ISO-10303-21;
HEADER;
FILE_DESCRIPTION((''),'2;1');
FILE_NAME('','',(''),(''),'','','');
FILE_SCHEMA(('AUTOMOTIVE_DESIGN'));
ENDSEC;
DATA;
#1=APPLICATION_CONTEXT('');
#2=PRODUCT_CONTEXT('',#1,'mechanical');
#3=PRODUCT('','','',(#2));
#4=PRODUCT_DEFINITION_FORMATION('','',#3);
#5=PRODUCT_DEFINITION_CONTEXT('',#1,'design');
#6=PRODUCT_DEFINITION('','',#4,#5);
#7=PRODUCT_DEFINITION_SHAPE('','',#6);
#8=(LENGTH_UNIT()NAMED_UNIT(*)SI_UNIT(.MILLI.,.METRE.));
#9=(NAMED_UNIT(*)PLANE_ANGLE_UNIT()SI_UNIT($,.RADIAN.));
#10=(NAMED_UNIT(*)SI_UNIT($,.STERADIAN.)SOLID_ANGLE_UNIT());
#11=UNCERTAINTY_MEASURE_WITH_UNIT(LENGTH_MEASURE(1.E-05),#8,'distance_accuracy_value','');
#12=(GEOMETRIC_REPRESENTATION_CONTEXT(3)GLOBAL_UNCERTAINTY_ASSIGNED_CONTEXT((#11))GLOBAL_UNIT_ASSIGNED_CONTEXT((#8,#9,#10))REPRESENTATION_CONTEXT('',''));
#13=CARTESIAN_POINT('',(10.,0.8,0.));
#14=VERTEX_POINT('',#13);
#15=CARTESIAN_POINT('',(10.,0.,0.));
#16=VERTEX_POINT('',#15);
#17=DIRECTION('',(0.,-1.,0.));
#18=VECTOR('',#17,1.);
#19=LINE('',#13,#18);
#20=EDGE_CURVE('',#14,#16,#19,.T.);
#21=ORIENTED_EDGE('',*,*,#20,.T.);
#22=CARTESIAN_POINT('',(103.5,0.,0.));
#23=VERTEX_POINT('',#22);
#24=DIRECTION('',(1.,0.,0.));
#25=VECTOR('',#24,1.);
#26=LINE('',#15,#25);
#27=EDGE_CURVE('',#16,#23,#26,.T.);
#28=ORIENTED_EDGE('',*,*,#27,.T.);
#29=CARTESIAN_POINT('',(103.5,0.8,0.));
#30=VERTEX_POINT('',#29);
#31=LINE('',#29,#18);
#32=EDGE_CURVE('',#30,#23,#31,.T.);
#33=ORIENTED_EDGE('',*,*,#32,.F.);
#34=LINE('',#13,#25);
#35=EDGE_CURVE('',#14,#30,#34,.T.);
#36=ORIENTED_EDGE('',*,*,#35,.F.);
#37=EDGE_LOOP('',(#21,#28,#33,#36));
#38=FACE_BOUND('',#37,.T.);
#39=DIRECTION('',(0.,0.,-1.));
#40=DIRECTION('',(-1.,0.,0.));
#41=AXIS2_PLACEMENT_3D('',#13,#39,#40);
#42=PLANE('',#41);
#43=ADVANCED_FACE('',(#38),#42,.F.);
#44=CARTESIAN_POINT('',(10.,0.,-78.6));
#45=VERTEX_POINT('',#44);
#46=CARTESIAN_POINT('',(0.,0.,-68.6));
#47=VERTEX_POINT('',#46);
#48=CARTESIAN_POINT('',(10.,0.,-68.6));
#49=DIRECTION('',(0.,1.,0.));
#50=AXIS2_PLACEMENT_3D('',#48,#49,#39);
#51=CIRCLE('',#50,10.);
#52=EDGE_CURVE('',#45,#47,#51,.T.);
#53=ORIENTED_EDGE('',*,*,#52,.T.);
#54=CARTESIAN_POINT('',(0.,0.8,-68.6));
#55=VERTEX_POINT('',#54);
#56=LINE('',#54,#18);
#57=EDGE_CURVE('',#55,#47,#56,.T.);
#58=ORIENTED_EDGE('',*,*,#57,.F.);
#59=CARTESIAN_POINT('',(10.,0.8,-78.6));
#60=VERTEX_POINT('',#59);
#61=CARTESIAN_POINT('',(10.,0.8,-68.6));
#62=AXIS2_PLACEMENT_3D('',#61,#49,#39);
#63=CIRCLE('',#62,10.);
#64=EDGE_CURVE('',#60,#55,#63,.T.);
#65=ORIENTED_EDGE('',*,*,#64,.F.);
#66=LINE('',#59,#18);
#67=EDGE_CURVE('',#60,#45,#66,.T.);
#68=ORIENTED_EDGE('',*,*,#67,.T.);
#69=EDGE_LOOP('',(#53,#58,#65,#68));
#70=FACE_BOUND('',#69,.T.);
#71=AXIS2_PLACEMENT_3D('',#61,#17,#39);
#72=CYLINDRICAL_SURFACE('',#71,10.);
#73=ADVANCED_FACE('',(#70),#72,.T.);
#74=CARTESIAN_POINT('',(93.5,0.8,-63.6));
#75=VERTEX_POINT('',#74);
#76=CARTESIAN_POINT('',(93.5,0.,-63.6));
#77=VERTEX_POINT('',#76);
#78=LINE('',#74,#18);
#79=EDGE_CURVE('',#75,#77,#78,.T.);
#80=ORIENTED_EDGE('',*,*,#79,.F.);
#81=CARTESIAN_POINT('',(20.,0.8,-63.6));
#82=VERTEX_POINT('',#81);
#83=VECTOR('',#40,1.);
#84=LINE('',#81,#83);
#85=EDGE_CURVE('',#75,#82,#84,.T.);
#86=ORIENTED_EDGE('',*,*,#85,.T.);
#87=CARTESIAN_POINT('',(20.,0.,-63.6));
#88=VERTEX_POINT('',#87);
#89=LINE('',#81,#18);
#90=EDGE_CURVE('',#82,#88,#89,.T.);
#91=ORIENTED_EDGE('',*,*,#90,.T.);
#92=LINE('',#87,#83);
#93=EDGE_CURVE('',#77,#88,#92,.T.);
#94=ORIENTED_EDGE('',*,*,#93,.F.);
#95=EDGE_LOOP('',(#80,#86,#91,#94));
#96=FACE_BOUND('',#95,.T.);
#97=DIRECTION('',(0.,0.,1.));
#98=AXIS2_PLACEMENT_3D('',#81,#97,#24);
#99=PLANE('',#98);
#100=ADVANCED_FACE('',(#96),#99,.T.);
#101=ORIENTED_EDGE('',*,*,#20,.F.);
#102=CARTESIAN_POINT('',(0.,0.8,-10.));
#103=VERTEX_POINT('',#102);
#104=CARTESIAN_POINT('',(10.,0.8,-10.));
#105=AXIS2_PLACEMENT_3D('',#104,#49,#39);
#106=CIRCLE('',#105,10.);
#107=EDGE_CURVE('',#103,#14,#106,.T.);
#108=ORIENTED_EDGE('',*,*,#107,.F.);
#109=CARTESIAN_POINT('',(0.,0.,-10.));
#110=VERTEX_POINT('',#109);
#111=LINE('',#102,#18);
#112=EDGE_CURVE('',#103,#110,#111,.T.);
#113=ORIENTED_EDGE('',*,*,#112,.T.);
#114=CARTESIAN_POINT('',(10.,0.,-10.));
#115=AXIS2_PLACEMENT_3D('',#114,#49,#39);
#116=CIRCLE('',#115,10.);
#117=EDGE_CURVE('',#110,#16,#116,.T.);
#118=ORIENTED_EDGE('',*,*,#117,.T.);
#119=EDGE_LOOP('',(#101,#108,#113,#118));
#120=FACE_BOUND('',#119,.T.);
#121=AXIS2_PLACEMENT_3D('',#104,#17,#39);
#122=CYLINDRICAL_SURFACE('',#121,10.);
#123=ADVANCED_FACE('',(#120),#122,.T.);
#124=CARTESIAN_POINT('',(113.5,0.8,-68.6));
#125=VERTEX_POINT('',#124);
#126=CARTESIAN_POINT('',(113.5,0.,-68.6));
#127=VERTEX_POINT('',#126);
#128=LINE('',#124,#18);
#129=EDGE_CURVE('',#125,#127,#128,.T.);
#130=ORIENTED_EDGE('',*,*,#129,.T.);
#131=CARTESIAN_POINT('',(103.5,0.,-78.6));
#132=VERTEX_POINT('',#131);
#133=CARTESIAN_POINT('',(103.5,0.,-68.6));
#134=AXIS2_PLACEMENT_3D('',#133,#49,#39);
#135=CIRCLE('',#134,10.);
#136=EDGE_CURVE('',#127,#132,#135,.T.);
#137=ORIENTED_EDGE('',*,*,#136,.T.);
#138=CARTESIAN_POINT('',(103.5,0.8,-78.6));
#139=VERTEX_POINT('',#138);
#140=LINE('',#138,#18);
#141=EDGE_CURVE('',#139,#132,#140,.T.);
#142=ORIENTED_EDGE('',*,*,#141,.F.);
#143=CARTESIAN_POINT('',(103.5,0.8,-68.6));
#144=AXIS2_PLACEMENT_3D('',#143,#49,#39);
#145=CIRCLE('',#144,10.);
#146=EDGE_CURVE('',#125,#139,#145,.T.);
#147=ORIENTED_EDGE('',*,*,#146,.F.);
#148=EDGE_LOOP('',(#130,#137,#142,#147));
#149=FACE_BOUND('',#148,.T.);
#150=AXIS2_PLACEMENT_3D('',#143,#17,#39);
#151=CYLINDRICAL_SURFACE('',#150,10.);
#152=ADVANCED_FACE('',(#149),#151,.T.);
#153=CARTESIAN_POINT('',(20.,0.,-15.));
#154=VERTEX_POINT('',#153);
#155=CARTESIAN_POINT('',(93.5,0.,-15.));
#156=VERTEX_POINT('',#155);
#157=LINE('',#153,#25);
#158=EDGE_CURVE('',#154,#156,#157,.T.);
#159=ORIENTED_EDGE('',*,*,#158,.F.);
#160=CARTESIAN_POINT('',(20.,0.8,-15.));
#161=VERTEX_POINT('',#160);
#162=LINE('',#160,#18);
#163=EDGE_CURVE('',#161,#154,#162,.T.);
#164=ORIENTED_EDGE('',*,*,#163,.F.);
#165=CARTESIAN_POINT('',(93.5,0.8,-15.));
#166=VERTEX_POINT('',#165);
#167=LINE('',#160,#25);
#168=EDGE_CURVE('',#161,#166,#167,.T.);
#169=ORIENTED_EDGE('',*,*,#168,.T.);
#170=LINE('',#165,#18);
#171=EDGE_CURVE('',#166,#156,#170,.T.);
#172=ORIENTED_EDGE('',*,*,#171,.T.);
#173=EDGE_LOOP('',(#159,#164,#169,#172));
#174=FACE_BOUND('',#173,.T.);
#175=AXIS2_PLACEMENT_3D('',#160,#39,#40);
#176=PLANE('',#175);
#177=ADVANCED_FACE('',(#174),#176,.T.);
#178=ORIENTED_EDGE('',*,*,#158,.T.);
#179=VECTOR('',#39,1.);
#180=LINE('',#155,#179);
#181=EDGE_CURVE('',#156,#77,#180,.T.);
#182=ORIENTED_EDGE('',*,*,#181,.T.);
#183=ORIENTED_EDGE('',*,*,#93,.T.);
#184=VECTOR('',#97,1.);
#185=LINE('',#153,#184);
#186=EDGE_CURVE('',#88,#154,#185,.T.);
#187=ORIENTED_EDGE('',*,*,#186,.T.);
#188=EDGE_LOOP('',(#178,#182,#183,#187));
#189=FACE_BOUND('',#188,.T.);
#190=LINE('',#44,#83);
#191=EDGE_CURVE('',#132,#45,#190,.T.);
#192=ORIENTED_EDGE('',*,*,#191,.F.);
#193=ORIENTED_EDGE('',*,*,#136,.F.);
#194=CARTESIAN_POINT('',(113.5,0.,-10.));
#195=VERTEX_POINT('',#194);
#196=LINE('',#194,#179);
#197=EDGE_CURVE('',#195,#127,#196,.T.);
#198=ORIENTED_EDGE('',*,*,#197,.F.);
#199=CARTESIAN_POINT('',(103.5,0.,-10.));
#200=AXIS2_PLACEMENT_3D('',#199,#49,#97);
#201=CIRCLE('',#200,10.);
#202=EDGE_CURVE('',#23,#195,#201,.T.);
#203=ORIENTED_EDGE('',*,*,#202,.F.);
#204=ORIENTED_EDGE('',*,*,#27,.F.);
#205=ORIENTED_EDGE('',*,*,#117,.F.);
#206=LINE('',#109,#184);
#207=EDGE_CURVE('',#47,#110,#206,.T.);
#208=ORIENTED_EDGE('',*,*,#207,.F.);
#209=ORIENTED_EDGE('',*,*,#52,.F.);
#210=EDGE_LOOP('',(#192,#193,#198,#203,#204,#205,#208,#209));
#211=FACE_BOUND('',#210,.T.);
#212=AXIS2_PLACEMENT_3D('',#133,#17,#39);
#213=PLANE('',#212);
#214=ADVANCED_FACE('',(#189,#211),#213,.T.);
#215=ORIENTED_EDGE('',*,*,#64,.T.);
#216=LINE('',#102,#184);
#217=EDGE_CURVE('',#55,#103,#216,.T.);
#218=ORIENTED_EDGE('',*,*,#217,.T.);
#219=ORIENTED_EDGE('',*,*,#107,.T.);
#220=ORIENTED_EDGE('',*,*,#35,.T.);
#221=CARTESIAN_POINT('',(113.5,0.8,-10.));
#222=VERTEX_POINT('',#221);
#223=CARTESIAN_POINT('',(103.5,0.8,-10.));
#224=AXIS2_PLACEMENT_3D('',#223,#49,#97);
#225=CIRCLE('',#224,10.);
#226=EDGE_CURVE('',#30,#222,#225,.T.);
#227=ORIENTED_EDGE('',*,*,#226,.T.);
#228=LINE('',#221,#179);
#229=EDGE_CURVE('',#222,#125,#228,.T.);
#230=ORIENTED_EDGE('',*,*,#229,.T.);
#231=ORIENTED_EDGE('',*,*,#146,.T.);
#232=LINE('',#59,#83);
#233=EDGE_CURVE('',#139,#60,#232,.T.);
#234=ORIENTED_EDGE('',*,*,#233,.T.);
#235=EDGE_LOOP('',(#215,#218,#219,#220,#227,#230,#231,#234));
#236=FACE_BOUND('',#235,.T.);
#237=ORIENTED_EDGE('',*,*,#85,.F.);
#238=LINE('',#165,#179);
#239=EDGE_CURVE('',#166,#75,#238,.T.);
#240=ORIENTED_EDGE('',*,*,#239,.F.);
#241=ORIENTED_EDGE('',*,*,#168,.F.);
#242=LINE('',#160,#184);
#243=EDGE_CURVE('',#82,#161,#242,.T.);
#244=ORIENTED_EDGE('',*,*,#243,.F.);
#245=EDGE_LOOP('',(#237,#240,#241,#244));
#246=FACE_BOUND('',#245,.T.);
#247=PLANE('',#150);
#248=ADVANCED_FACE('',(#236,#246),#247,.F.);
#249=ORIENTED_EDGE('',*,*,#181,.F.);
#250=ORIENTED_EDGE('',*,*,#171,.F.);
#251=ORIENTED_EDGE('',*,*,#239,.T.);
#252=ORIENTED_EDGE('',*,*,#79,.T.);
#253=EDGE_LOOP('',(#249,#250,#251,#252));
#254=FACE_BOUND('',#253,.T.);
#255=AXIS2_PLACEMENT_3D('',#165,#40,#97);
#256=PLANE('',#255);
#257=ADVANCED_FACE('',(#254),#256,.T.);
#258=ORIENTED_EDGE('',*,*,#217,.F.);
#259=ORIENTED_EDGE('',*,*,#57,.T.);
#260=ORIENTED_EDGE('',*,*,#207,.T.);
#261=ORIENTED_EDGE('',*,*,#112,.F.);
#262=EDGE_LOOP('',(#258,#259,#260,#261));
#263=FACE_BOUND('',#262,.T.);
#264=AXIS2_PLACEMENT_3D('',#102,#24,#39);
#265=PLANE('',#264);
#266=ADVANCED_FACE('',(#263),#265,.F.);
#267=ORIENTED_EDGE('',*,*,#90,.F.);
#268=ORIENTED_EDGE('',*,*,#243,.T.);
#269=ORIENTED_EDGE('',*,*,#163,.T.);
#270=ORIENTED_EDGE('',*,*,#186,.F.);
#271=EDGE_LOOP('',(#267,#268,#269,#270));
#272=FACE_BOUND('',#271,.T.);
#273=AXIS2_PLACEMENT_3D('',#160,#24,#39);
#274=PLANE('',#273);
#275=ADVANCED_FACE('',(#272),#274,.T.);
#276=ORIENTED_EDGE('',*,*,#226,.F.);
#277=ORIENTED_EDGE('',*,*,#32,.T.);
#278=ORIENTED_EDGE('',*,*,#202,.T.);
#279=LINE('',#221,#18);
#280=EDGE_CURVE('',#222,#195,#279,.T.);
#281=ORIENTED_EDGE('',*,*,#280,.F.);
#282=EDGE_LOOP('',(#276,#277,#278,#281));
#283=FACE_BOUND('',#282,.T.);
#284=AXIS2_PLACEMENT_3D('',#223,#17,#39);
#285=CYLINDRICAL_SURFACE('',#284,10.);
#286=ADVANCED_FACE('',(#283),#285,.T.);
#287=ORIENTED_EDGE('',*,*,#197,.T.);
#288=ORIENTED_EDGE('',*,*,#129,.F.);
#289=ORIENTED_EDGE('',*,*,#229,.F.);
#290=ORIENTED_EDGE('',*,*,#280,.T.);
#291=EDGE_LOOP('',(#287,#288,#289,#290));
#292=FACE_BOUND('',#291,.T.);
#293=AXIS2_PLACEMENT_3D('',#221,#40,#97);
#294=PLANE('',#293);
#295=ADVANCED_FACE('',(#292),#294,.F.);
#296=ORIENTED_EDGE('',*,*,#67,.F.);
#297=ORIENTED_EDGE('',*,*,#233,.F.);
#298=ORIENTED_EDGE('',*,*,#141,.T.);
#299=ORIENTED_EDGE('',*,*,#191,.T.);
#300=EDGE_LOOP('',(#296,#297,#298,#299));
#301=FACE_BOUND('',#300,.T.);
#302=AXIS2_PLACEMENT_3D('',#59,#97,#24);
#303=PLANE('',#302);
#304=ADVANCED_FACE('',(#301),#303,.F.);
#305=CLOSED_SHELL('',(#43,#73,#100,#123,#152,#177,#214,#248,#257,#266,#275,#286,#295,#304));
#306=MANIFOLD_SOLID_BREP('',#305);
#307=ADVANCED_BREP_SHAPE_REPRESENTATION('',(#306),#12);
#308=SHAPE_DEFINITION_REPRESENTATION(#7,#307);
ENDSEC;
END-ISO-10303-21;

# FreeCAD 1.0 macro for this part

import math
import FreeCAD as App
import Part
import Sketcher

V = App.Vector
Q = App.Units.Quantity


def add_polygon(sketch, points):
    """Adds a closed chain of lines whose ends are joined by coincident constraints."""
    first, n = sketch.GeometryCount, len(points)
    for a, b in zip(points, points[1:] + points[:1]):
        sketch.addGeometry(Part.LineSegment(App.Vector(*a, 0), App.Vector(*b, 0)), False)
    for i in range(n):
        sketch.addConstraint(Sketcher.Constraint("Coincident", first + i, 2, first + (i + 1) % n, 1))

doc = App.newDocument("Part")
params = doc.addObject("Spreadsheet::Sheet", "Params")
for row, (alias, value) in enumerate([
    ("sketch1_radius", "10 mm"),
    ("sketch1_width", "93.5 mm"),
    ("sketch1_width2", "73.5 mm"),
    ("sketch1_height", "58.6 mm"),
    ("sketch1_height2", "48.6 mm"),
    ("pad1_length", "0.8 mm"),
], start=1):
    params.set(f"A{row}", alias)
    params.set(f"B{row}", "=" + value)
    params.setAlias(f"B{row}", alias)

body = doc.addObject("PartDesign::Body", "Body")

sketch1 = body.newObject("Sketcher::SketchObject", "Sketch")
sketch1.AttachmentSupport = (doc.getObject("XZ_Plane"), [""])
sketch1.MapMode = "FlatFace"
sketch1.addGeometry(Part.LineSegment(V(10, 0, 0), V(103.5, 0, 0)), False)
sketch1.addGeometry(Part.ArcOfCircle(Part.Circle(V(103.5, -10, 0), V(0, 0, 1), 10), math.radians(0), math.radians(90)), False)
sketch1.addGeometry(Part.LineSegment(V(113.5, -10, 0), V(113.5, -68.6, 0)), False)
sketch1.addGeometry(Part.ArcOfCircle(Part.Circle(V(103.5, -68.6, 0), V(0, 0, 1), 10), math.radians(-90), math.radians(0)), False)
sketch1.addGeometry(Part.LineSegment(V(103.5, -78.6, 0), V(10, -78.6, 0)), False)
sketch1.addGeometry(Part.ArcOfCircle(Part.Circle(V(10, -68.6, 0), V(0, 0, 1), 10), math.radians(180), math.radians(270)), False)
sketch1.addGeometry(Part.LineSegment(V(0, -68.6, 0), V(0, -10, 0)), False)
sketch1.addGeometry(Part.ArcOfCircle(Part.Circle(V(10, -10, 0), V(0, 0, 1), 10), math.radians(90), math.radians(180)), False)
add_polygon(sketch1, [(93.5, -15), (20, -15), (20, -63.6), (93.5, -63.6)])
sketch1.addConstraint(Sketcher.Constraint("Tangent", 0, 2, 1, 2))
sketch1.addConstraint(Sketcher.Constraint("Tangent", 1, 1, 2, 1))
sketch1.addConstraint(Sketcher.Constraint("Tangent", 2, 2, 3, 2))
sketch1.addConstraint(Sketcher.Constraint("Tangent", 3, 1, 4, 1))
sketch1.addConstraint(Sketcher.Constraint("Tangent", 4, 2, 5, 2))
sketch1.addConstraint(Sketcher.Constraint("Tangent", 5, 1, 6, 1))
sketch1.addConstraint(Sketcher.Constraint("Tangent", 6, 2, 7, 2))
sketch1.addConstraint(Sketcher.Constraint("Tangent", 7, 1, 0, 1))
sketch1.addConstraint(Sketcher.Constraint("Horizontal", 0))
sketch1.addConstraint(Sketcher.Constraint("Vertical", 2))
sketch1.addConstraint(Sketcher.Constraint("Horizontal", 4))
sketch1.addConstraint(Sketcher.Constraint("Vertical", 6))
sketch1.addConstraint(Sketcher.Constraint("Horizontal", 8))
sketch1.addConstraint(Sketcher.Constraint("Vertical", 9))
sketch1.addConstraint(Sketcher.Constraint("Horizontal", 10))
sketch1.addConstraint(Sketcher.Constraint("Vertical", 11))
sketch1.addConstraint(Sketcher.Constraint("Equal", 1, 3))
sketch1.addConstraint(Sketcher.Constraint("Equal", 3, 5))
sketch1.addConstraint(Sketcher.Constraint("Equal", 5, 7))
sketch1.addConstraint(Sketcher.Constraint("PointOnObject", 0, 2, -1))
sketch1.addConstraint(Sketcher.Constraint("PointOnObject", 5, 1, -2))
sketch1.addConstraint(Sketcher.Constraint("Radius", 1, Q("10 mm")))
sketch1.addConstraint(Sketcher.Constraint("DistanceX", 0, 1, 0, 2, Q("93.5 mm")))
sketch1.addConstraint(Sketcher.Constraint("DistanceX", 8, 2, 8, 1, Q("73.5 mm")))
sketch1.addConstraint(Sketcher.Constraint("DistanceY", 2, 2, 2, 1, Q("58.6 mm")))
sketch1.addConstraint(Sketcher.Constraint("DistanceY", 9, 2, 9, 1, Q("48.6 mm")))
sketch1.addConstraint(Sketcher.Constraint("DistanceX", -1, 1, 8, 2, Q("20 mm")))
sketch1.addConstraint(Sketcher.Constraint("DistanceY", 8, 2, -1, 1, Q("15 mm")))
sketch1.setExpression("Constraints[25]", "Params.sketch1_radius")
sketch1.setExpression("Constraints[26]", "Params.sketch1_width")
sketch1.setExpression("Constraints[27]", "Params.sketch1_width2")
sketch1.setExpression("Constraints[28]", "Params.sketch1_height")
sketch1.setExpression("Constraints[29]", "Params.sketch1_height2")
pad1 = body.newObject("PartDesign::Pad", "Pad")
pad1.Profile = sketch1
pad1.setExpression("Length", "Params.pad1_length")
pad1.Reversed = True

doc.recompute()
